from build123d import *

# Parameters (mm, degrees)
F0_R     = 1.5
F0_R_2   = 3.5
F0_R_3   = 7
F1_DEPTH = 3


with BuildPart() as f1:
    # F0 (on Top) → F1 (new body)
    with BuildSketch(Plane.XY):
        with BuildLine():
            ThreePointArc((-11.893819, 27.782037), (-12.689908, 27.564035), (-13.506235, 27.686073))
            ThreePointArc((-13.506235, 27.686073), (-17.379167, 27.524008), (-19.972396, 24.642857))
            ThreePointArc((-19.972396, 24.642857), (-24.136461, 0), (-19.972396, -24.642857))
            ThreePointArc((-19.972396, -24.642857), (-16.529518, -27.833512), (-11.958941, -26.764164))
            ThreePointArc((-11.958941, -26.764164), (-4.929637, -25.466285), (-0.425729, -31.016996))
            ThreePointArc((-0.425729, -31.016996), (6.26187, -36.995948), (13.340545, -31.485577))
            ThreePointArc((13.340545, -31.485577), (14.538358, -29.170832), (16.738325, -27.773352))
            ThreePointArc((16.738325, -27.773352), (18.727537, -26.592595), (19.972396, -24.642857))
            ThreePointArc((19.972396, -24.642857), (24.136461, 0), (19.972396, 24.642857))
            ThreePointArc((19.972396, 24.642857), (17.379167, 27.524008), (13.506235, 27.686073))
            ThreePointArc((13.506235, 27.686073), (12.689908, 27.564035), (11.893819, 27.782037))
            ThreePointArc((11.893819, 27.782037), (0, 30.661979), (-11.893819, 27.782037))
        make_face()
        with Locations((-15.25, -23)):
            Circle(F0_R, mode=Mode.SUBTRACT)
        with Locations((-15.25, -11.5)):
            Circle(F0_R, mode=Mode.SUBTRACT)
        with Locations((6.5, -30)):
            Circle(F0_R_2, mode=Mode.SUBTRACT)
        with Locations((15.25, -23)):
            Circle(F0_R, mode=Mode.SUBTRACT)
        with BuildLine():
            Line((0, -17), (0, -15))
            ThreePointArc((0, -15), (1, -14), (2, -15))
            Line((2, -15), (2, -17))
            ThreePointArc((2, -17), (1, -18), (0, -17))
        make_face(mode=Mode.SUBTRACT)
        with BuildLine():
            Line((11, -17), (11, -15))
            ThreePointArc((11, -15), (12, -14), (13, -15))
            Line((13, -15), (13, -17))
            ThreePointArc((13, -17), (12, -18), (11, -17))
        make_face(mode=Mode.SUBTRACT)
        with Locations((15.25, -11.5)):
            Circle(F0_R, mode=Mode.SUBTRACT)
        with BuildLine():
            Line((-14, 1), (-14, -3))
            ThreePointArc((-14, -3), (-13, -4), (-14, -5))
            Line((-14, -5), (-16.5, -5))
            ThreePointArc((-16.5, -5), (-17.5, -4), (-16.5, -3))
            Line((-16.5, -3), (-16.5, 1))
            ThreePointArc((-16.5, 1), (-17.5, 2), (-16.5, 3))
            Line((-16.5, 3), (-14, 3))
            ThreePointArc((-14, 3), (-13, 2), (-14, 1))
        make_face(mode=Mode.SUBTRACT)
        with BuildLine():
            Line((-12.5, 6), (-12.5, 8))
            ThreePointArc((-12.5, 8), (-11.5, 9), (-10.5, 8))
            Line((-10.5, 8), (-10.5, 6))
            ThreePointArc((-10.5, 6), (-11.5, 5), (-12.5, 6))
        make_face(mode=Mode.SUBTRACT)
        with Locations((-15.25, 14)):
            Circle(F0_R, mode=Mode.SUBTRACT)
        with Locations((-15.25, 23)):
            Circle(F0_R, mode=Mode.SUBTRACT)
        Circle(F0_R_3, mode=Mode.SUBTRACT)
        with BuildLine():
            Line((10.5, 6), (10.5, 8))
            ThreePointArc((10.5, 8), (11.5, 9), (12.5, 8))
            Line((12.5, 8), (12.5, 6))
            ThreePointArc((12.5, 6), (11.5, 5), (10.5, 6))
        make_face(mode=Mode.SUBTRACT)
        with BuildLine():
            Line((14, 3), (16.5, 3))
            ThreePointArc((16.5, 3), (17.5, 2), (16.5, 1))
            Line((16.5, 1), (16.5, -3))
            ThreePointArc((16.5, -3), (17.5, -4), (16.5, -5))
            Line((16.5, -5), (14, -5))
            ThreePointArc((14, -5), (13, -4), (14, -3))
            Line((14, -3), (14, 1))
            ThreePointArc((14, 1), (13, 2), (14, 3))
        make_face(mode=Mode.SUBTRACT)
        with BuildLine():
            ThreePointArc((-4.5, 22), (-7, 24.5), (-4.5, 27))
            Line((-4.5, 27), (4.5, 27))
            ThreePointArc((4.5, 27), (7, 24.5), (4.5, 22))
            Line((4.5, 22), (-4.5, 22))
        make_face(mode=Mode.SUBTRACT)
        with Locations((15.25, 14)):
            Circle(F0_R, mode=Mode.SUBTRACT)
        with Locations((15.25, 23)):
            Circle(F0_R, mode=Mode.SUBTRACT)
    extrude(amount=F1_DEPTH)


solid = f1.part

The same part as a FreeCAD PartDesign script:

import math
import FreeCAD as App
import Part
import Sketcher
from FreeCAD import Vector
Q = App.Units.Quantity

doc = App.newDocument("Part")
params = doc.addObject("Spreadsheet::Sheet", "Params")
for row, (alias, value) in enumerate([
    ("sketch1_diameter", "3 mm"),
    ("sketch1_diameter2", "7 mm"),
    ("sketch1_diameter3", "14 mm"),
    ("sketch1_radius", "1.999998 mm"),
    ("sketch1_radius2", "5 mm"),
    ("pad1_length", "3 mm"),
], start=1):
    params.set(f"A{row}", alias)
    params.set(f"B{row}", "=" + value)
    params.setAlias(f"B{row}", alias)

body = doc.addObject("PartDesign::Body", "Body")

# Sketch on XY plane
sketch1 = body.newObject("Sketcher::SketchObject", "Sketch")
sketch1.AttachmentSupport = (doc.getObject("XY_Plane"), [""])
sketch1.MapMode = "FlatFace"
sketch1.addGeometry([
    Part.ArcOfCircle(Part.Circle(Vector(-12.808729, 29.5605, 0), Vector(0, 0, 1), 1.999998), math.radians(-110.411078), math.radians(-62.776965)),  # 0
    Part.ArcOfCircle(Part.Circle(Vector(-15.250001, 23, 0), Vector(0, 0, 1), 5), math.radians(69.588931), math.radians(160.817911)),  # 1
    Part.ArcOfCircle(Part.Circle(Vector(50.86355, 0, 0), Vector(0, 0, 1), 75.000011), math.radians(160.817913), math.radians(199.182087)),  # 2
    Part.ArcOfCircle(Part.Circle(Vector(-15.25, -23.000001, 0), Vector(0, 0, 1), 5), math.radians(-160.817918), math.radians(-48.836356)),  # 3
    Part.ArcOfCircle(Part.Circle(Vector(-7.351458, -32.033993, 0), Vector(0, 0, 1), 7), math.radians(8.353797), math.radians(131.163648)),  # 4
    Part.ArcOfCircle(Part.Circle(Vector(6.5, -30, 0), Vector(0, 0, 1), 7), math.radians(-171.646205), math.radians(-12.252795)),  # 5
    Part.ArcOfCircle(Part.Circle(Vector(18.226648, -32.546703, 0), Vector(0, 0, 1), 4.999999), math.radians(107.317387), math.radians(167.747206)),  # 6
    Part.ArcOfCircle(Part.Circle(Vector(15.250001, -23, 0), Vector(0, 0, 1), 5), math.radians(-72.682594), math.radians(-19.182087)),  # 7
    Part.ArcOfCircle(Part.Circle(Vector(-50.86355, 0, 0), Vector(0, 0, 1), 75.000011), math.radians(-19.182087), math.radians(19.182087)),  # 8
    Part.ArcOfCircle(Part.Circle(Vector(15.250001, 23, 0), Vector(0, 0, 1), 5), math.radians(19.182089), math.radians(110.411069)),  # 9
    Part.ArcOfCircle(Part.Circle(Vector(12.808729, 29.5605, 0), Vector(0, 0, 1), 1.999998), math.radians(-117.223035), math.radians(-69.588922)),  # 10
    Part.ArcOfCircle(Part.Circle(Vector(0, 4.661977, 0), Vector(0, 0, 1), 26.000002), math.radians(62.777025), math.radians(117.222975)),  # 11
    Part.Circle(Vector(-15.25, -23, 0), Vector(0, 0, 1), 1.5),  # 12
    Part.Circle(Vector(-15.25, -11.5, 0), Vector(0, 0, 1), 1.5),  # 13
    Part.Circle(Vector(6.5, -30, 0), Vector(0, 0, 1), 3.5),  # 14
    Part.Circle(Vector(15.25, -23, 0), Vector(0, 0, 1), 1.5),  # 15
    Part.ArcOfCircle(Part.Circle(Vector(1, -17, 0), Vector(0, 0, 1), 1), math.radians(180), math.radians(360)),  # 16
    Part.LineSegment(Vector(0, -17, 0), Vector(0, -15, 0)),  # 17
    Part.ArcOfCircle(Part.Circle(Vector(1, -15, 0), Vector(0, 0, 1), 1), math.radians(0), math.radians(180)),  # 18
    Part.LineSegment(Vector(2, -15, 0), Vector(2, -17, 0)),  # 19
    Part.ArcOfCircle(Part.Circle(Vector(12, -17, 0), Vector(0, 0, 1), 1), math.radians(180), math.radians(360)),  # 20
    Part.LineSegment(Vector(11, -17, 0), Vector(11, -15, 0)),  # 21
    Part.ArcOfCircle(Part.Circle(Vector(12, -15, 0), Vector(0, 0, 1), 1), math.radians(0), math.radians(180)),  # 22
    Part.LineSegment(Vector(13, -15, 0), Vector(13, -17, 0)),  # 23
    Part.Circle(Vector(15.25, -11.5, 0), Vector(0, 0, 1), 1.5),  # 24
    Part.ArcOfCircle(Part.Circle(Vector(-14, 2, 0), Vector(0, 0, 1), 1), math.radians(-90), math.radians(90)),  # 25
    Part.LineSegment(Vector(-14, 1, 0), Vector(-14, -3, 0)),  # 26
    Part.ArcOfCircle(Part.Circle(Vector(-14, -4, 0), Vector(0, 0, 1), 1), math.radians(-90), math.radians(90)),  # 27
    Part.LineSegment(Vector(-14, -5, 0), Vector(-16.5, -5, 0)),  # 28
    Part.ArcOfCircle(Part.Circle(Vector(-16.5, -4, 0), Vector(0, 0, 1), 1), math.radians(90), math.radians(270)),  # 29
    Part.LineSegment(Vector(-16.5, -3, 0), Vector(-16.5, 1, 0)),  # 30
    Part.ArcOfCircle(Part.Circle(Vector(-16.5, 2, 0), Vector(0, 0, 1), 1), math.radians(90), math.radians(270)),  # 31
    Part.LineSegment(Vector(-16.5, 3, 0), Vector(-14, 3, 0)),  # 32
    Part.ArcOfCircle(Part.Circle(Vector(-11.5, 6, 0), Vector(0, 0, 1), 1), math.radians(180), math.radians(360)),  # 33
    Part.LineSegment(Vector(-12.5, 6, 0), Vector(-12.5, 8, 0)),  # 34
    Part.ArcOfCircle(Part.Circle(Vector(-11.5, 8, 0), Vector(0, 0, 1), 1), math.radians(0), math.radians(180)),  # 35
    Part.LineSegment(Vector(-10.5, 8, 0), Vector(-10.5, 6, 0)),  # 36
    Part.Circle(Vector(-15.25, 14, 0), Vector(0, 0, 1), 1.5),  # 37
    Part.Circle(Vector(-15.25, 23, 0), Vector(0, 0, 1), 1.5),  # 38
    Part.Circle(Vector(0, 0, 0), Vector(0, 0, 1), 7),  # 39
    Part.ArcOfCircle(Part.Circle(Vector(14, 2, 0), Vector(0, 0, 1), 1), math.radians(90), math.radians(270)),  # 40
    Part.LineSegment(Vector(14, 3, 0), Vector(16.5, 3, 0)),  # 41
    Part.ArcOfCircle(Part.Circle(Vector(16.5, 2, 0), Vector(0, 0, 1), 1), math.radians(-90), math.radians(90)),  # 42
    Part.LineSegment(Vector(16.5, 1, 0), Vector(16.5, -3, 0)),  # 43
    Part.ArcOfCircle(Part.Circle(Vector(16.5, -4, 0), Vector(0, 0, 1), 1), math.radians(-90), math.radians(90)),  # 44
    Part.LineSegment(Vector(16.5, -5, 0), Vector(14, -5, 0)),  # 45
    Part.ArcOfCircle(Part.Circle(Vector(14, -4, 0), Vector(0, 0, 1), 1), math.radians(90), math.radians(270)),  # 46
    Part.LineSegment(Vector(14, -3, 0), Vector(14, 1, 0)),  # 47
    Part.ArcOfCircle(Part.Circle(Vector(11.5, 6, 0), Vector(0, 0, 1), 1), math.radians(180), math.radians(360)),  # 48
    Part.LineSegment(Vector(10.5, 6, 0), Vector(10.5, 8, 0)),  # 49
    Part.ArcOfCircle(Part.Circle(Vector(11.5, 8, 0), Vector(0, 0, 1), 1), math.radians(0), math.radians(180)),  # 50
    Part.LineSegment(Vector(12.5, 8, 0), Vector(12.5, 6, 0)),  # 51
    Part.LineSegment(Vector(4.5, 22, 0), Vector(-4.5, 22, 0)),  # 52
    Part.ArcOfCircle(Part.Circle(Vector(-4.5, 24.5, 0), Vector(0, 0, 1), 2.5), math.radians(90), math.radians(270)),  # 53
    Part.LineSegment(Vector(-4.5, 27, 0), Vector(4.5, 27, 0)),  # 54
    Part.ArcOfCircle(Part.Circle(Vector(4.5, 24.5, 0), Vector(0, 0, 1), 2.5), math.radians(-90), math.radians(90)),  # 55
    Part.Circle(Vector(15.25, 14, 0), Vector(0, 0, 1), 1.5),  # 56
    Part.Circle(Vector(15.25, 23, 0), Vector(0, 0, 1), 1.5),  # 57
], False)
sketch1.addConstraint([
    Sketcher.Constraint("Tangent", 0, 1, 1, 1),
    Sketcher.Constraint("Tangent", 1, 2, 2, 1),
    Sketcher.Constraint("Tangent", 2, 2, 3, 1),
    Sketcher.Constraint("Tangent", 3, 2, 4, 2),
    Sketcher.Constraint("Tangent", 4, 1, 5, 1),
    Sketcher.Constraint("Tangent", 5, 2, 6, 2),
    Sketcher.Constraint("Tangent", 6, 1, 7, 1),
    Sketcher.Constraint("Tangent", 7, 2, 8, 1),
    Sketcher.Constraint("Tangent", 8, 2, 9, 1),
    Sketcher.Constraint("Tangent", 9, 2, 10, 2),
    Sketcher.Constraint("Tangent", 10, 1, 11, 1),
    Sketcher.Constraint("Tangent", 11, 2, 0, 2),
    Sketcher.Constraint("Tangent", 16, 1, 17, 1),
    Sketcher.Constraint("Tangent", 17, 2, 18, 2),
    Sketcher.Constraint("Tangent", 18, 1, 19, 1),
    Sketcher.Constraint("Tangent", 19, 2, 16, 2),
    Sketcher.Constraint("Tangent", 20, 1, 21, 1),
    Sketcher.Constraint("Tangent", 21, 2, 22, 2),
    Sketcher.Constraint("Tangent", 22, 1, 23, 1),
    Sketcher.Constraint("Tangent", 23, 2, 20, 2),
    Sketcher.Constraint("Coincident", 25, 1, 26, 1),
    Sketcher.Constraint("Coincident", 26, 2, 27, 2),
    Sketcher.Constraint("Tangent", 27, 1, 28, 1),
    Sketcher.Constraint("Tangent", 28, 2, 29, 2),
    Sketcher.Constraint("Coincident", 29, 1, 30, 1),
    Sketcher.Constraint("Coincident", 30, 2, 31, 2),
    Sketcher.Constraint("Tangent", 31, 1, 32, 1),
    Sketcher.Constraint("Tangent", 32, 2, 25, 2),
    Sketcher.Constraint("Tangent", 33, 1, 34, 1),
    Sketcher.Constraint("Tangent", 34, 2, 35, 2),
    Sketcher.Constraint("Tangent", 35, 1, 36, 1),
    Sketcher.Constraint("Tangent", 36, 2, 33, 2),
    Sketcher.Constraint("Tangent", 40, 1, 41, 1),
    Sketcher.Constraint("Tangent", 41, 2, 42, 2),
    Sketcher.Constraint("Coincident", 42, 1, 43, 1),
    Sketcher.Constraint("Coincident", 43, 2, 44, 2),
    Sketcher.Constraint("Tangent", 44, 1, 45, 1),
    Sketcher.Constraint("Tangent", 45, 2, 46, 2),
    Sketcher.Constraint("Coincident", 46, 1, 47, 1),
    Sketcher.Constraint("Coincident", 47, 2, 40, 2),
    Sketcher.Constraint("Tangent", 48, 1, 49, 1),
    Sketcher.Constraint("Tangent", 49, 2, 50, 2),
    Sketcher.Constraint("Tangent", 50, 1, 51, 1),
    Sketcher.Constraint("Tangent", 51, 2, 48, 2),
    Sketcher.Constraint("Tangent", 52, 2, 53, 2),
    Sketcher.Constraint("Tangent", 53, 1, 54, 1),
    Sketcher.Constraint("Tangent", 54, 2, 55, 2),
    Sketcher.Constraint("Tangent", 55, 1, 52, 1),
    Sketcher.Constraint("Vertical", 17),
    Sketcher.Constraint("Vertical", 19),
    Sketcher.Constraint("Vertical", 21),
    Sketcher.Constraint("Vertical", 23),
    Sketcher.Constraint("Vertical", 26),
    Sketcher.Constraint("Horizontal", 28),
    Sketcher.Constraint("Vertical", 30),
    Sketcher.Constraint("Horizontal", 32),
    Sketcher.Constraint("Vertical", 34),
    Sketcher.Constraint("Vertical", 36),
    Sketcher.Constraint("Horizontal", 41),
    Sketcher.Constraint("Vertical", 43),
    Sketcher.Constraint("Horizontal", 45),
    Sketcher.Constraint("Vertical", 47),
    Sketcher.Constraint("Vertical", 49),
    Sketcher.Constraint("Vertical", 51),
    Sketcher.Constraint("Horizontal", 52),
    Sketcher.Constraint("Horizontal", 54),
    Sketcher.Constraint("Coincident", 39, 3, -1, 1),
    Sketcher.Constraint("Coincident", 12, 3, 3, 3),
    Sketcher.Constraint("Coincident", 14, 3, 5, 3),
    Sketcher.Constraint("Coincident", 15, 3, 7, 3),
    Sketcher.Constraint("Coincident", 38, 3, 1, 3),
    Sketcher.Constraint("Coincident", 57, 3, 9, 3),
    Sketcher.Constraint("Equal", 1, 3),
    Sketcher.Constraint("Equal", 4, 5),
    Sketcher.Constraint("Equal", 3, 6),
    Sketcher.Constraint("Equal", 6, 7),
    Sketcher.Constraint("Equal", 2, 8),
    Sketcher.Constraint("Equal", 7, 9),
    Sketcher.Constraint("Equal", 0, 10),
    Sketcher.Constraint("Equal", 12, 13),
    Sketcher.Constraint("Equal", 13, 15),
    Sketcher.Constraint("Equal", 18, 20),
    Sketcher.Constraint("Equal", 15, 24),
    Sketcher.Constraint("Equal", 22, 25),
    Sketcher.Constraint("Equal", 25, 27),
    Sketcher.Constraint("Equal", 27, 29),
    Sketcher.Constraint("Equal", 29, 31),
    Sketcher.Constraint("Equal", 31, 33),
    Sketcher.Constraint("Equal", 24, 37),
    Sketcher.Constraint("Equal", 37, 38),
    Sketcher.Constraint("Equal", 5, 39),
    Sketcher.Constraint("Equal", 35, 40),
    Sketcher.Constraint("Equal", 40, 42),
    Sketcher.Constraint("Equal", 42, 44),
    Sketcher.Constraint("Equal", 44, 46),
    Sketcher.Constraint("Equal", 46, 48),
    Sketcher.Constraint("Equal", 38, 56),
    Sketcher.Constraint("Equal", 56, 57),
    Sketcher.Constraint("Symmetric", 1, 3, 7, 3, -1, 1),
    Sketcher.Constraint("Symmetric", 3, 3, 9, 3, -1, 1),
    Sketcher.Constraint("Symmetric", 26, 2, 40, 1, -1, 1),
    Sketcher.Constraint("Symmetric", 31, 1, 43, 2, -1, 1),
    Sketcher.Constraint("Symmetric", 3, 3, 7, 3, -2),
    Sketcher.Constraint("Symmetric", 13, 3, 24, 3, -2),
    Sketcher.Constraint("Symmetric", 25, 3, 40, 3, -2),
    Sketcher.Constraint("Symmetric", 33, 3, 48, 3, -2),
    Sketcher.Constraint("Symmetric", 37, 3, 56, 3, -2),
    Sketcher.Constraint("PointOnObject", 11, 3, -2),
    Sketcher.Constraint("PointOnObject", 16, 1, -2),
    Sketcher.Constraint("Horizontal", 16, 3, 20, 3),
    Sketcher.Constraint("Horizontal", 18, 3, 22, 3),
    Sketcher.Constraint("Horizontal", 35, 3, 50, 3),
    Sketcher.Constraint("Vertical", 12, 3, 13, 3),
    Sketcher.Constraint("Vertical", 25, 3, 27, 3),
    Sketcher.Constraint("Vertical", 29, 3, 31, 3),
    Sketcher.Constraint("Vertical", 13, 3, 37, 3),
    Sketcher.Constraint("Vertical", 42, 3, 44, 3),
    Sketcher.Constraint("Vertical", 40, 3, 46, 3),
    Sketcher.Constraint("Vertical", 28, 2, 29, 1),
    Sketcher.Constraint("Vertical", 41, 2, 42, 1),
    Sketcher.Constraint("Vertical", 45, 2, 46, 1),
    Sketcher.Constraint("Equal", 23, 34),
    Sketcher.Constraint("Diameter", 12, Q("3 mm")),
    Sketcher.Constraint("Diameter", 14, Q("7 mm")),
    Sketcher.Constraint("Diameter", 39, Q("14 mm")),
    Sketcher.Constraint("Radius", 0, Q("1.999998 mm")),
    Sketcher.Constraint("Radius", 1, Q("5 mm")),
    Sketcher.Constraint("Radius", 16, Q("1 mm")),
    Sketcher.Constraint("Radius", 53, Q("2.5 mm")),
    Sketcher.Constraint("DistanceX", 52, 2, 52, 1, Q("9 mm")),
    Sketcher.Constraint("DistanceY", 17, 1, 17, 2, Q("2 mm")),
    Sketcher.Constraint("DistanceY", 26, 2, 26, 1, Q("4 mm")),
    Sketcher.Constraint("DistanceX", 28, 2, 28, 1, Q("2.5 mm")),
    Sketcher.Constraint("DistanceY", -1, 1, 1, 3, Q("23 mm")),
    Sketcher.Constraint("DistanceY", 5, 3, -1, 1, Q("30 mm")),
    Sketcher.Constraint("DistanceY", 16, 3, -1, 1, Q("17 mm")),
    Sketcher.Constraint("DistanceX", -1, 1, 20, 3, Q("12 mm")),
    Sketcher.Constraint("DistanceX", 25, 3, -1, 1, Q("14 mm")),
    Sketcher.Constraint("DistanceY", -1, 1, 33, 3, Q("6 mm")),
    Sketcher.Constraint("DistanceY", -1, 1, 37, 3, Q("14 mm")),
    Sketcher.Constraint("DistanceY", -1, 1, 52, 2, Q("22 mm")),
    Sketcher.Constraint("DistanceX", -1, 1, 5, 3, Q("6.5 mm")),
    Sketcher.Constraint("DistanceY", 13, 3, -1, 1, Q("11.5 mm")),
    Sketcher.Constraint("DistanceX", 33, 3, -1, 1, Q("11.5 mm")),
    Sketcher.Constraint("DistanceX", 53, 3, -1, 1, Q("4.5 mm")),
    Sketcher.Constraint("DistanceX", 1, 3, -1, 1, Q("15.250001 mm")),
    Sketcher.Constraint("Radius", 2, Q("75.000011 mm")),
    Sketcher.Constraint("Radius", 11, Q("26.000002 mm")),
    Sketcher.Constraint("DistanceY", -1, 1, 0, 3, Q("29.5605 mm")),
])
sketch1.setExpression("Constraints[122]", "Params.sketch1_diameter")
sketch1.setExpression("Constraints[123]", "Params.sketch1_diameter2")
sketch1.setExpression("Constraints[124]", "Params.sketch1_diameter3")
sketch1.setExpression("Constraints[125]", "Params.sketch1_radius")
sketch1.setExpression("Constraints[126]", "Params.sketch1_radius2")
pad1 = body.newObject("PartDesign::Pad", "Pad")
pad1.Profile = sketch1
pad1.setExpression("Length", "Params.pad1_length")

doc.recompute()
